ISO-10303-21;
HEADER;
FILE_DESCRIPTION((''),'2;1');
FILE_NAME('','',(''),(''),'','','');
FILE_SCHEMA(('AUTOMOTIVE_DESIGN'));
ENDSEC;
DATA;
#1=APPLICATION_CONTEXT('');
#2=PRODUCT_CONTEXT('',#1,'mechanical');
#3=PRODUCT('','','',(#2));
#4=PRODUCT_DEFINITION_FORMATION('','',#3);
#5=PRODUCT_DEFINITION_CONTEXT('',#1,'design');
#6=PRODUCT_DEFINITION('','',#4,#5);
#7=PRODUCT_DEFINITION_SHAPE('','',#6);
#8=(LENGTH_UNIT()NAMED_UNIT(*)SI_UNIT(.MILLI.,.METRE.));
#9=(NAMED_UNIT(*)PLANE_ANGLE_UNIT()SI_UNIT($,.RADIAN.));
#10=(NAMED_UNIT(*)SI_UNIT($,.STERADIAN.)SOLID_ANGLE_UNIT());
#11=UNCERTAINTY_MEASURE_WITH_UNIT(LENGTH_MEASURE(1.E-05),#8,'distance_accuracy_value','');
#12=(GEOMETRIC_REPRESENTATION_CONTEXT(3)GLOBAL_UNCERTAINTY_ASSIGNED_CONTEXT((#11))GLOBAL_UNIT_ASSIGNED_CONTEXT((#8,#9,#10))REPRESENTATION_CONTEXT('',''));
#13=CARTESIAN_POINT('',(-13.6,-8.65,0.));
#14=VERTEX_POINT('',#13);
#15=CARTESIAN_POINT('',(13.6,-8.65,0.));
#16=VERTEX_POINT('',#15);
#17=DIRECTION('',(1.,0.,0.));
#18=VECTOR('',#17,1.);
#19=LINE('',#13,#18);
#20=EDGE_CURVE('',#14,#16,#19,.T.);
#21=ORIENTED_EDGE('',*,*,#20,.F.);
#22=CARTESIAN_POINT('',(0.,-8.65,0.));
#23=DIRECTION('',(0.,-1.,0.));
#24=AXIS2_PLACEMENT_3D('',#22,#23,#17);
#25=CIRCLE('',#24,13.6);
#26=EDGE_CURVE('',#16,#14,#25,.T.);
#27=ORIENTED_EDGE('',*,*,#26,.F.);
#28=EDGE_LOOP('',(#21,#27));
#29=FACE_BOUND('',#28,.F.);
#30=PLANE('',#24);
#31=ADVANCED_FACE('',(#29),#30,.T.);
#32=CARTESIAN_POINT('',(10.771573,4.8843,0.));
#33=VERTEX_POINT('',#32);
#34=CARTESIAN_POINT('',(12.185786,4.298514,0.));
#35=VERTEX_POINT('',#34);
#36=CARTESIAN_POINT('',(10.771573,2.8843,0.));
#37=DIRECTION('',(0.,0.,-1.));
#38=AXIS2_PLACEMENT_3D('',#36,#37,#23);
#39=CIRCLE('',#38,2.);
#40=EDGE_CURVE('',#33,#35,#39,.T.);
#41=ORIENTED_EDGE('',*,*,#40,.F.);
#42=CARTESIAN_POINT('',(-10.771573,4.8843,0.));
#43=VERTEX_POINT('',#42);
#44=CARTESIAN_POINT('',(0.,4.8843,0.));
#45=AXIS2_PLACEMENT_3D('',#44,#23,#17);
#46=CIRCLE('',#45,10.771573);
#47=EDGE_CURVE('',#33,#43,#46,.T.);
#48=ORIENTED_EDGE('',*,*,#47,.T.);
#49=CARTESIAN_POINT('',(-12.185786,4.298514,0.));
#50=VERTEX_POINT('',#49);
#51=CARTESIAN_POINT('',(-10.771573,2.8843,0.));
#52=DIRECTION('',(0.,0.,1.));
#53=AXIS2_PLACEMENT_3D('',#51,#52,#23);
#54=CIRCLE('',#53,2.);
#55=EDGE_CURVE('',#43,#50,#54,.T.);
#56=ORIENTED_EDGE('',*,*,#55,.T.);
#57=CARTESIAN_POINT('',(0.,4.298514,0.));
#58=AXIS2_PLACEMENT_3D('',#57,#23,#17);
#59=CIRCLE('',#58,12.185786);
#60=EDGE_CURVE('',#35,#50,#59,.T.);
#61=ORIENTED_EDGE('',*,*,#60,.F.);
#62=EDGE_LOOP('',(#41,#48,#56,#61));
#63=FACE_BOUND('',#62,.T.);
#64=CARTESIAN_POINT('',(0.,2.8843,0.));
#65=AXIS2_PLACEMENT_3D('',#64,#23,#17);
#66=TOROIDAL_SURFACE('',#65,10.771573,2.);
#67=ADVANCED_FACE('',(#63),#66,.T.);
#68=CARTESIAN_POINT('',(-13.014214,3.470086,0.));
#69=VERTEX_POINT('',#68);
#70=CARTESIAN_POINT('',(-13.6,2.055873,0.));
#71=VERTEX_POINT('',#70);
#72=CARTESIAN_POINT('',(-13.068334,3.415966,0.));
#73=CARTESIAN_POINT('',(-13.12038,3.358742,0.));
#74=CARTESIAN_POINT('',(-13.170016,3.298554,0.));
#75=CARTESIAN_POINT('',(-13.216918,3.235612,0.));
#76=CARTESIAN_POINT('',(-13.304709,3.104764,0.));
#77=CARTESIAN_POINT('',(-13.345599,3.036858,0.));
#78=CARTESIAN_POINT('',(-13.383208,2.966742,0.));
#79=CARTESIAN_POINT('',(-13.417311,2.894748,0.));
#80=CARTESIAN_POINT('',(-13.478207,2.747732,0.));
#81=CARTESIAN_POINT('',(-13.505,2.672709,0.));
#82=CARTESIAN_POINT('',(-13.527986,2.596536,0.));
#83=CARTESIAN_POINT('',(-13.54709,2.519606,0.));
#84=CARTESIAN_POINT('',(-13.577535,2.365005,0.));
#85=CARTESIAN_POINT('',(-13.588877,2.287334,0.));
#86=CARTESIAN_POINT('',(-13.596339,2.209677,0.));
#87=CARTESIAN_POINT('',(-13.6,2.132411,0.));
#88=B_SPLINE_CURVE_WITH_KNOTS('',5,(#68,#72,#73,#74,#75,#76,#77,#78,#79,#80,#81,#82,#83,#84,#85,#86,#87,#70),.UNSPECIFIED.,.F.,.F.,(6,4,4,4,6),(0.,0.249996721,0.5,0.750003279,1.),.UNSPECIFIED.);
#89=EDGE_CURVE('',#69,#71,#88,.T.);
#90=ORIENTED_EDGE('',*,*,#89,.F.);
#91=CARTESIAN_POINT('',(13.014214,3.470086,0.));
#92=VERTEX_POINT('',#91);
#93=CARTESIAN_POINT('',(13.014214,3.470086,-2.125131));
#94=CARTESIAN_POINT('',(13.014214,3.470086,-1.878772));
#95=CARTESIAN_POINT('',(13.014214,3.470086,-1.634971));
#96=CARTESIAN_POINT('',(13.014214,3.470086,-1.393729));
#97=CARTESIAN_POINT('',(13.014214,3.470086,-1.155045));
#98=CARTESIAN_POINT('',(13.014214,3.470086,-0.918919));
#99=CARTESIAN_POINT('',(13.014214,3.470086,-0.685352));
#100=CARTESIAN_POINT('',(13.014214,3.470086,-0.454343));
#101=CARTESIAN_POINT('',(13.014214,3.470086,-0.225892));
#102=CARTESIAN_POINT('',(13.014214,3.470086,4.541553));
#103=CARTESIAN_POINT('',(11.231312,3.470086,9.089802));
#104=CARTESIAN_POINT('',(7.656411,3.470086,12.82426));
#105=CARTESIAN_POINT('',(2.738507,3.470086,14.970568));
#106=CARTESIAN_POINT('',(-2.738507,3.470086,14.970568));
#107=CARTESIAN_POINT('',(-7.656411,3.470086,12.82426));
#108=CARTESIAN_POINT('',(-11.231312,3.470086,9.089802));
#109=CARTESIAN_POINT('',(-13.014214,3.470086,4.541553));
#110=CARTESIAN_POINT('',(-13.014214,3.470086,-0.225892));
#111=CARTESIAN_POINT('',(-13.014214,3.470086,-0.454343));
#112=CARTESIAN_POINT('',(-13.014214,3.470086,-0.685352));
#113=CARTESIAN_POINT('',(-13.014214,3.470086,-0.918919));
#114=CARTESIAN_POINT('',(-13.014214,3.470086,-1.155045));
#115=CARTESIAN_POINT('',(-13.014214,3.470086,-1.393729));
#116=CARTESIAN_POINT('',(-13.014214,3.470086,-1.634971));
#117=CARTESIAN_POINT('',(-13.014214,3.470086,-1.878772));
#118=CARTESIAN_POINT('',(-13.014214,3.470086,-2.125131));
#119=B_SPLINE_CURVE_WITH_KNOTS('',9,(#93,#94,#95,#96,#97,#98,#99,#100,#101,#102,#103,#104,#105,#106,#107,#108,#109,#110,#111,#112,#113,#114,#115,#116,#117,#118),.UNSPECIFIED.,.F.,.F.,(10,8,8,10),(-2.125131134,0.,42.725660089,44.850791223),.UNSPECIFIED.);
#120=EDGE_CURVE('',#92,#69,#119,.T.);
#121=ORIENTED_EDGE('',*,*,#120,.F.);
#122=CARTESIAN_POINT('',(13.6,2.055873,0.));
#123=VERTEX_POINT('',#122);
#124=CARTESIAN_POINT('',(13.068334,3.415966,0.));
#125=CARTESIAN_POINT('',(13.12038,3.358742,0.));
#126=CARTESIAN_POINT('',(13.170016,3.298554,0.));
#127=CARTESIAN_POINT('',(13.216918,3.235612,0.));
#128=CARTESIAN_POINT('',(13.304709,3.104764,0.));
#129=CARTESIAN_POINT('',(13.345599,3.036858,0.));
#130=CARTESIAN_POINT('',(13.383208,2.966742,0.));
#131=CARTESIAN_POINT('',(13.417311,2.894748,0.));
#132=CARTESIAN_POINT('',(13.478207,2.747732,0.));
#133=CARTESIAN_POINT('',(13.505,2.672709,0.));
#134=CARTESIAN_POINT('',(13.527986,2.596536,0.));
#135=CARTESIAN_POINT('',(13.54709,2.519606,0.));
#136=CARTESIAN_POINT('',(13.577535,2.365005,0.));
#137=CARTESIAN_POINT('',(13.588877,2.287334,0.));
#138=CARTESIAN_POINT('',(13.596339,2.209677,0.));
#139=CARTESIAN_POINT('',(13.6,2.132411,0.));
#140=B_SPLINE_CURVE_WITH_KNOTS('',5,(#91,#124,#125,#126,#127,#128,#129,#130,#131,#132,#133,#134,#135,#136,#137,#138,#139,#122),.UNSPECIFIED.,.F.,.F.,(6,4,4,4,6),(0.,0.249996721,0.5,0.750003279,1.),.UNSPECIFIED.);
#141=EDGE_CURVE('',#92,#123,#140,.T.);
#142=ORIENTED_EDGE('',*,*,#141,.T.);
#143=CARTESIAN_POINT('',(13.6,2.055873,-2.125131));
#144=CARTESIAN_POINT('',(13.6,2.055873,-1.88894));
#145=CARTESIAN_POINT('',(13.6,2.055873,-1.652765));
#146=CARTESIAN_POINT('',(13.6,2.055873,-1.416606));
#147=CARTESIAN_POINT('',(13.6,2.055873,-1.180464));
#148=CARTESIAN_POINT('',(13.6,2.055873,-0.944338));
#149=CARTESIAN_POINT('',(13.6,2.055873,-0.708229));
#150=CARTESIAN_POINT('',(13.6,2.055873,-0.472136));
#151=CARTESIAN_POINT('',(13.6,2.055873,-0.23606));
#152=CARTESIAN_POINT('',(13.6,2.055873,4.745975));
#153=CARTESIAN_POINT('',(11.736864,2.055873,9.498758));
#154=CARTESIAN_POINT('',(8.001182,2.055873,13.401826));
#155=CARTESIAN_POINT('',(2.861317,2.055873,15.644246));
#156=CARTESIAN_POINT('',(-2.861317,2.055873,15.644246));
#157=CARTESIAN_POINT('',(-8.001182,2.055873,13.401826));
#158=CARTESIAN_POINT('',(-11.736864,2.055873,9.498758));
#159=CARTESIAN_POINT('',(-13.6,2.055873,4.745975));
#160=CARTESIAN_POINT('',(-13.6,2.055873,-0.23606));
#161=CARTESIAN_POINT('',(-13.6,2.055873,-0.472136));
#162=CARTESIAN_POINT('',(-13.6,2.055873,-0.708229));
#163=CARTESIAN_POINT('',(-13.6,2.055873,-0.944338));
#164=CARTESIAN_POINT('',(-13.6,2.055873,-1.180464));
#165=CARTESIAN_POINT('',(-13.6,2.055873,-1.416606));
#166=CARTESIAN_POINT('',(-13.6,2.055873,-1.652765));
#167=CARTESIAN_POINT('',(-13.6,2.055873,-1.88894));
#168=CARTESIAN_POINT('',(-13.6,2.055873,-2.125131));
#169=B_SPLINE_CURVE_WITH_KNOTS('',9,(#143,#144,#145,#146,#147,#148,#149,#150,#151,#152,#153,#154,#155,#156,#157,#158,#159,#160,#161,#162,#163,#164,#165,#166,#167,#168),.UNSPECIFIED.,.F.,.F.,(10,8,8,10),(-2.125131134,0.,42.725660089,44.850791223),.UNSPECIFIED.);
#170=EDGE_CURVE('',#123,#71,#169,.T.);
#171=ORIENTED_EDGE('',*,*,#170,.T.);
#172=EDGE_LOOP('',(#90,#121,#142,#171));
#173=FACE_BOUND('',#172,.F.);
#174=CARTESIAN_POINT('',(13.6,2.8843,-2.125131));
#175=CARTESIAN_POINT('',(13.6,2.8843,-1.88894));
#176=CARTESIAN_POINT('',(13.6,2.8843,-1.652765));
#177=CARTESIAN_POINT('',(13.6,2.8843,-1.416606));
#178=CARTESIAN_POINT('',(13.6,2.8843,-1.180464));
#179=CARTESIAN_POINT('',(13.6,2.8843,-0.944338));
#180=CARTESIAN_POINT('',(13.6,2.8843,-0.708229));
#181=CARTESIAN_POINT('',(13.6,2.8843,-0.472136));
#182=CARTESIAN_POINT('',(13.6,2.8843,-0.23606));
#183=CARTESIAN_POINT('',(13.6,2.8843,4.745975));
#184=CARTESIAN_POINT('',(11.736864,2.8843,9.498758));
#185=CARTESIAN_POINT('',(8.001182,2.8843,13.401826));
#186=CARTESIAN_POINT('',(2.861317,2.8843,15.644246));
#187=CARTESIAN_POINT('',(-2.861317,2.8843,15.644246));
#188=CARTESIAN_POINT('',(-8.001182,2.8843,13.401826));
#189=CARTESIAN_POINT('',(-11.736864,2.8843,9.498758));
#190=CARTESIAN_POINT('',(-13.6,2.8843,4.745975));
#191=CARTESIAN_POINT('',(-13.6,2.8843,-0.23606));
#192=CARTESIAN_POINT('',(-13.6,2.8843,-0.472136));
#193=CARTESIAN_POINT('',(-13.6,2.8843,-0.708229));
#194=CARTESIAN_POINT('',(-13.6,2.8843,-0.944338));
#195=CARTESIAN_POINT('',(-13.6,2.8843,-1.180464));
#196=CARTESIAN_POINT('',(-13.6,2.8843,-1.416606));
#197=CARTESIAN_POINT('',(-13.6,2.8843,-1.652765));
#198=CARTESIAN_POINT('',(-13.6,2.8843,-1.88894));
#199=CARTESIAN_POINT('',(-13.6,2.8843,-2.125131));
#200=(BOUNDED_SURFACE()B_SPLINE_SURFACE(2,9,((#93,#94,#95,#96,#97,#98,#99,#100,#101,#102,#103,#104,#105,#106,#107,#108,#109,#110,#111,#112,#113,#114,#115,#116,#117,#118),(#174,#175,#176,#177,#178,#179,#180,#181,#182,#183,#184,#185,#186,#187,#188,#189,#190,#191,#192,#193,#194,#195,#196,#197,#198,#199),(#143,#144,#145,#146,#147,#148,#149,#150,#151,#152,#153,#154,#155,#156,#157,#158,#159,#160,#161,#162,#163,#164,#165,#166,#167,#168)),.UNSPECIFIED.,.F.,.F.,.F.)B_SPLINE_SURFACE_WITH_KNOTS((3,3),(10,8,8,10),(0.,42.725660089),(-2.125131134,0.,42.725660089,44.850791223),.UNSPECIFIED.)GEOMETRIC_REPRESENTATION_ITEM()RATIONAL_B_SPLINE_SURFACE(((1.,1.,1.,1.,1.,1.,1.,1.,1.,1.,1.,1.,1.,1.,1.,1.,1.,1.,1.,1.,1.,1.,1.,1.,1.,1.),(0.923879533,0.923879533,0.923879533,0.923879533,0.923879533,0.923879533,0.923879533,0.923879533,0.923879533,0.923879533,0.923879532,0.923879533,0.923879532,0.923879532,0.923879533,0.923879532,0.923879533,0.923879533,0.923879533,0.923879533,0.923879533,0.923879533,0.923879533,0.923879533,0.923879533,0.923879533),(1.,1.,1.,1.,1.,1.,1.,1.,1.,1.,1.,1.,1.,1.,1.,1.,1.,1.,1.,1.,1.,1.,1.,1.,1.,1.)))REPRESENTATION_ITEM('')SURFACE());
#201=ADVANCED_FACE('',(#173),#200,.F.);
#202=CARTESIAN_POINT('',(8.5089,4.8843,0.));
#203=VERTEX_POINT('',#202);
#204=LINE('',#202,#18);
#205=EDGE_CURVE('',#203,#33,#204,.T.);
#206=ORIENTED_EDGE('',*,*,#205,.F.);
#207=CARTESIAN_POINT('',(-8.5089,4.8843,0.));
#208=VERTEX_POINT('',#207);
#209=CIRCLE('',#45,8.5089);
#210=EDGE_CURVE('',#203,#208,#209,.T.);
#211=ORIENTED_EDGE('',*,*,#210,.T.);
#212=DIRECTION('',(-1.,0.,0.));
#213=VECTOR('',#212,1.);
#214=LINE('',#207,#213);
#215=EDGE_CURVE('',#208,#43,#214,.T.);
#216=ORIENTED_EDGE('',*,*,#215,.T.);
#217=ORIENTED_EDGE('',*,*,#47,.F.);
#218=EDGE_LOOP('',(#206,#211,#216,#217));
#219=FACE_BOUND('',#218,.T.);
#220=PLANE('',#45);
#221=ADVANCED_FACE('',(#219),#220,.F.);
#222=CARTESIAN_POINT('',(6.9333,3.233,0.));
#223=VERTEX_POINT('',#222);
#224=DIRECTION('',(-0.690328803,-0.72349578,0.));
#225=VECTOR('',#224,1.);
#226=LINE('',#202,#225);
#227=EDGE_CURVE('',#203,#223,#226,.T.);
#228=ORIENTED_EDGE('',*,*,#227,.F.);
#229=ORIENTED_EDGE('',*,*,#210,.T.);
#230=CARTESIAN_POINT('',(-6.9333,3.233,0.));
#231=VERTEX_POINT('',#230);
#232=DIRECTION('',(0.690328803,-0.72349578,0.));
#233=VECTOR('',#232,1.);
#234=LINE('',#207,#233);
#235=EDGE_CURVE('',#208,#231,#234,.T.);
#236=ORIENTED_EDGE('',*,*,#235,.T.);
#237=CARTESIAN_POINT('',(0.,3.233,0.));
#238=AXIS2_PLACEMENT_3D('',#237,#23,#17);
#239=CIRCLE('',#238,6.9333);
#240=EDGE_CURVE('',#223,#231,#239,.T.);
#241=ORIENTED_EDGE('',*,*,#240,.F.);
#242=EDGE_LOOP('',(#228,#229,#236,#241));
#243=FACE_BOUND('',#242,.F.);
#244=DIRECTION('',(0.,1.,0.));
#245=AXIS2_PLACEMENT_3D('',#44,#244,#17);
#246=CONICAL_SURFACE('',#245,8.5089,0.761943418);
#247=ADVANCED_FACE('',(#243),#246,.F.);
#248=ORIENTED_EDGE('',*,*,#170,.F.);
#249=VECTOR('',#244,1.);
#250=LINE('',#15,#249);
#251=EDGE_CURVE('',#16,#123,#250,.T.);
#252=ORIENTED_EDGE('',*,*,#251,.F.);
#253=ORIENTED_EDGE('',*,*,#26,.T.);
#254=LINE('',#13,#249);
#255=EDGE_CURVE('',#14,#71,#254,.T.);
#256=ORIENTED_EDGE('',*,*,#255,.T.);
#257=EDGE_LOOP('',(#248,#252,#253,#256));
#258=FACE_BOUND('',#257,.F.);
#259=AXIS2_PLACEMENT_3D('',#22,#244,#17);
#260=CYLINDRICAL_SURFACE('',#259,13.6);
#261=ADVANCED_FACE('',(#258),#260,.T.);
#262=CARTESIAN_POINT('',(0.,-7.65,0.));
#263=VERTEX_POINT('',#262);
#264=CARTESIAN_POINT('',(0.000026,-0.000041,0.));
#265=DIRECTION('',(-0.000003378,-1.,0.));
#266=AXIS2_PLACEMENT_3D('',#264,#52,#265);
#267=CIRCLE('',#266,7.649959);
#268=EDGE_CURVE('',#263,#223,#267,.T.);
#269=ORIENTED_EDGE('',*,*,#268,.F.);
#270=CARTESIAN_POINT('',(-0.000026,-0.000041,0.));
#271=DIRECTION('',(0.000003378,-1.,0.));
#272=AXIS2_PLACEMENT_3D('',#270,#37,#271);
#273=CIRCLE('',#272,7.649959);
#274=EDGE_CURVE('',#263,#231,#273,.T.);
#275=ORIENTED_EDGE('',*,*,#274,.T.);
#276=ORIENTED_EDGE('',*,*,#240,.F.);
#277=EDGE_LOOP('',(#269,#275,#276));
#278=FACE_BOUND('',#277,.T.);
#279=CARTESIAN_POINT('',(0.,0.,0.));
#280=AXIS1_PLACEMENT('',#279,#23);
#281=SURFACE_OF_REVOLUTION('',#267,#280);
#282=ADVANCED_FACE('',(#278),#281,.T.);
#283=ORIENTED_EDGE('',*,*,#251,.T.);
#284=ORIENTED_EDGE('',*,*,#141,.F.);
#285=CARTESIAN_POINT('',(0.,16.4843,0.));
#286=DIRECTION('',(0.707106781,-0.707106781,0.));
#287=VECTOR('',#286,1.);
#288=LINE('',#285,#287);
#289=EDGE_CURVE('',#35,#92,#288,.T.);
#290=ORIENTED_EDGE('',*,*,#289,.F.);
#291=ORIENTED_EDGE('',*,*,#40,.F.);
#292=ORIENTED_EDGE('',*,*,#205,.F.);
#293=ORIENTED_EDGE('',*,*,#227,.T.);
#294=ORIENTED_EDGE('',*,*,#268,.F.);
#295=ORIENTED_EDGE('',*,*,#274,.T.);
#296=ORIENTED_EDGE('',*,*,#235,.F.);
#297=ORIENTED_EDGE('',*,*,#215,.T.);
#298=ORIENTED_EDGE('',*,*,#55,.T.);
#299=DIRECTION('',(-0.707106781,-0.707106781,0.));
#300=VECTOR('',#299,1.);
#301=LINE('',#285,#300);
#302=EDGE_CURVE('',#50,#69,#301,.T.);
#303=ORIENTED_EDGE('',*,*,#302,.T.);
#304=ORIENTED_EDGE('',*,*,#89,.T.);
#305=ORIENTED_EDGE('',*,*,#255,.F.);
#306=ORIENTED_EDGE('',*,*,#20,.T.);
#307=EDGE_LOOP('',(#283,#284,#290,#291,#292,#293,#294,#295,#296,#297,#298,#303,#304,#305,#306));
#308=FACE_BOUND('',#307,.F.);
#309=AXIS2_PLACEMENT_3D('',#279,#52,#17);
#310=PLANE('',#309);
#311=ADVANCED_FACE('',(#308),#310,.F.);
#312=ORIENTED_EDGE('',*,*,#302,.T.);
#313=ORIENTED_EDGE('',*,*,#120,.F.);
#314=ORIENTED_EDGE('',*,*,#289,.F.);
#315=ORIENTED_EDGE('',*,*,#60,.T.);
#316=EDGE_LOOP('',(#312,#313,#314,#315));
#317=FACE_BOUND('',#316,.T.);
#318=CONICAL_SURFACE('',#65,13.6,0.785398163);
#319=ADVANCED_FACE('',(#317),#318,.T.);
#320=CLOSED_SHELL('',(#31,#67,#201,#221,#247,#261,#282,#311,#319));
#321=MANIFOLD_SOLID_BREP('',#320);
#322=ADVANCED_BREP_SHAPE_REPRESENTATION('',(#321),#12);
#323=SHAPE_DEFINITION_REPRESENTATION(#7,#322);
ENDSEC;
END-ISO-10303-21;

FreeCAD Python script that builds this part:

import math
import FreeCAD as App
import Part
import Sketcher

V = App.Vector
Q = App.Units.Quantity


def edges_at(feature, points):
    """Names of the edges that pass closest to the given points."""
    edges = feature.Shape.Edges
    near = lambda p: min(range(len(edges)), key=lambda i: edges[i].distToShape(Part.Vertex(*p))[0])
    return sorted({f"Edge{near(p) + 1}" for p in points})

doc = App.newDocument("Part")
body = doc.addObject("PartDesign::Body", "Body")

sketch1 = body.newObject("Sketcher::SketchObject", "Sketch")
sketch1.AttachmentSupport = (doc.getObject("XY_Plane"), [""])
sketch1.MapMode = "FlatFace"
sketch1.addGeometry([
    Part.ArcOfCircle(Part.Circle(V(0, 0, 0), V(0, 0, 1), 7.7), math.radians(-90), math.radians(25)),
    Part.LineSegment(V(0, -7.7, 0), V(0, -8.7, 0)),
    Part.LineSegment(V(0, -8.7, 0), V(13.6, -8.7, 0)),
    Part.LineSegment(V(13.6, -8.7, 0), V(13.6, 4.9, 0)),
    Part.LineSegment(V(13.6, 4.9, 0), V(8.5, 4.9, 0)),
    Part.LineSegment(V(8.5, 4.9, 0), V(6.9, 3.2, 0)),
], False)
sketch1.addConstraint([
    Sketcher.Constraint("Coincident", 0, 1, 1, 1),
    Sketcher.Constraint("Coincident", 1, 2, 2, 1),
    Sketcher.Constraint("Coincident", 2, 2, 3, 1),
    Sketcher.Constraint("Coincident", 3, 2, 4, 1),
    Sketcher.Constraint("Coincident", 4, 2, 5, 1),
    Sketcher.Constraint("Coincident", 5, 2, 0, 2),
    Sketcher.Constraint("Vertical", 1),
    Sketcher.Constraint("Horizontal", 2),
    Sketcher.Constraint("Vertical", 3),
    Sketcher.Constraint("Horizontal", 4),
    Sketcher.Constraint("Coincident", 0, 3, -1, 1),
    Sketcher.Constraint("PointOnObject", 0, 1, -2),
    Sketcher.Constraint("DistanceY", 1, 2, 1, 1, Q("1 mm")),
    Sketcher.Constraint("Radius", 0, Q("7.65 mm")),
    Sketcher.Constraint("DistanceX", 2, 1, 2, 2, Q("13.6 mm")),
    Sketcher.Constraint("DistanceX", 4, 2, 4, 1, Q("5.091 mm")),
    Sketcher.Constraint("DistanceY", 3, 1, 3, 2, Q("13.5343 mm")),
    Sketcher.Constraint("DistanceY", -1, 1, 5, 2, Q("3.233 mm")),
])
revolution = body.newObject("PartDesign::Revolution", "Revolution")
revolution.Profile = sketch1
revolution.ReferenceAxis = (sketch1, ["V_Axis"])
revolution.Angle = 180
revolution.Reversed = True

sketch2 = body.newObject("Sketcher::SketchObject", "Sketch001")
sketch2.AttachmentSupport = (doc.getObject("XY_Plane"), [""])
sketch2.MapMode = "FlatFace"
sketch2.addGeometry(Part.Circle(V(0, 0, 0), V(0, 0, 1), 2), False)
sketch2.addConstraint([
    Sketcher.Constraint("Coincident", 0, 3, -1, 1),
    Sketcher.Constraint("Diameter", 0, Q("4 mm")),
])
pocket1 = body.newObject("PartDesign::Pocket", "Pocket")
pocket1.Profile = sketch2
pocket1.Length = 12
pocket1.Midplane = True
doc.recompute()

chamfer = body.newObject("PartDesign::Chamfer", "Chamfer")
chamfer.Base = (pocket1, edges_at(pocket1, [(0, 4.884, 13.6)]))
chamfer.Size = 2
doc.recompute()

fillet = body.newObject("PartDesign::Fillet", "Fillet")
fillet.Base = (chamfer, edges_at(chamfer, [(0, 2.884, 13.6), (0, 4.884, 11.6)]))
fillet.Radius = 2

doc.recompute()
